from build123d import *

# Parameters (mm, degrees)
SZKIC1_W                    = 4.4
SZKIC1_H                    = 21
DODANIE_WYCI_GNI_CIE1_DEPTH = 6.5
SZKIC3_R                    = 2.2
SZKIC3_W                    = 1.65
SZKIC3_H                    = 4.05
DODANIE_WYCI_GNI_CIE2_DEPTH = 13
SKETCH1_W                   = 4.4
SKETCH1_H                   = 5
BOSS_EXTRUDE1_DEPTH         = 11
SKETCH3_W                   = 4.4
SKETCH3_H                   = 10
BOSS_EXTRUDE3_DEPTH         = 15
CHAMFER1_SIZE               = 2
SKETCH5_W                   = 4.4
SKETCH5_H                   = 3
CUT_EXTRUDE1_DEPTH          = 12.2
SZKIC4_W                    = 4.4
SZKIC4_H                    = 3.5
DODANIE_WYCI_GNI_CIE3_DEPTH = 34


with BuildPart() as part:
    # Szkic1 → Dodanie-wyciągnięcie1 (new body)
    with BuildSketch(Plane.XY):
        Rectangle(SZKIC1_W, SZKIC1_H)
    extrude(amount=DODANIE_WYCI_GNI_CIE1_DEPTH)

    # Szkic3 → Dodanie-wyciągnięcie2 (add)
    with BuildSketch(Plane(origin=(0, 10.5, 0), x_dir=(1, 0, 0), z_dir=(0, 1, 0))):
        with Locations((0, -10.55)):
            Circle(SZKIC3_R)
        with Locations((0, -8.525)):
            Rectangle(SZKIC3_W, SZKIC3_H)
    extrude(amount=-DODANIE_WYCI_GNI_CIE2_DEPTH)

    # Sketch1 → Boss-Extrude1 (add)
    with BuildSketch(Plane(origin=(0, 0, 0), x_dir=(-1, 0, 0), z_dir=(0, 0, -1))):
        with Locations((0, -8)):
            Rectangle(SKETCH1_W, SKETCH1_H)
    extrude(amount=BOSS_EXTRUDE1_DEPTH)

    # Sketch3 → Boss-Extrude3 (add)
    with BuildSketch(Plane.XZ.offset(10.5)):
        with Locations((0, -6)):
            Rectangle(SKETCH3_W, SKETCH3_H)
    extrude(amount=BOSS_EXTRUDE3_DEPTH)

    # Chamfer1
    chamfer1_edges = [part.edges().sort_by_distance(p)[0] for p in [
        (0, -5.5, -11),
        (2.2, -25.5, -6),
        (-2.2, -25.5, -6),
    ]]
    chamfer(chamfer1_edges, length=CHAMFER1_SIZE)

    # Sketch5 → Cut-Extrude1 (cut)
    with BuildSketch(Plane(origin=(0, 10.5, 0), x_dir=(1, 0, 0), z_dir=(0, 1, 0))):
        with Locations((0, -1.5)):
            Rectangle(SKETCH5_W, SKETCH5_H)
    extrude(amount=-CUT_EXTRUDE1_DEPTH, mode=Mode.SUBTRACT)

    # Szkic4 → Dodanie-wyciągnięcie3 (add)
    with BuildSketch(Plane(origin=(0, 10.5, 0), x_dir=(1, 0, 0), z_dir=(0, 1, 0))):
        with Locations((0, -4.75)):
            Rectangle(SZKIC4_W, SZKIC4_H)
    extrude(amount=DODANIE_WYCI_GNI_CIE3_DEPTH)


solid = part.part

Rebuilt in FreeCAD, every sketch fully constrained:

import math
import FreeCAD as App
import Part
import Sketcher
Q = App.Units.Quantity


def edges_at(feature, points):
    """Names of the edges that pass closest to the given points."""
    edges = feature.Shape.Edges
    near = lambda p: min(range(len(edges)), key=lambda i: edges[i].distToShape(Part.Vertex(*p))[0])
    return sorted({f"Edge{near(p) + 1}" for p in points})


def add_polygon(sketch, points):
    """Adds a closed chain of lines whose ends are joined by coincident constraints."""
    first, n = sketch.GeometryCount, len(points)
    for a, b in zip(points, points[1:] + points[:1]):
        sketch.addGeometry(Part.LineSegment(App.Vector(*a, 0), App.Vector(*b, 0)), False)
    for i in range(n):
        sketch.addConstraint(Sketcher.Constraint("Coincident", first + i, 2, first + (i + 1) % n, 1))

doc = App.newDocument("Part")
body = doc.addObject("PartDesign::Body", "Body")

# Sketch on XY plane
sketch1 = body.newObject("Sketcher::SketchObject", "Sketch")
sketch1.AttachmentSupport = (doc.getObject("XY_Plane"), [""])
sketch1.MapMode = "FlatFace"
add_polygon(sketch1, [(-2.2, 10.5), (-2.2, -10.5), (2.2, -10.5), (2.2, 10.5)])  # lines 0-3
sketch1.addConstraint([
    Sketcher.Constraint("Vertical", 0),
    Sketcher.Constraint("Horizontal", 1),
    Sketcher.Constraint("Vertical", 2),
    Sketcher.Constraint("Horizontal", 3),
    Sketcher.Constraint("Symmetric", 0, 2, 2, 2, -1, 1),
    Sketcher.Constraint("DistanceY", 0, 2, 0, 1, Q("21 mm")),
    Sketcher.Constraint("DistanceX", 1, 1, 1, 2, Q("4.4 mm")),
])
pad1 = body.newObject("PartDesign::Pad", "Pad")
pad1.Profile = sketch1
pad1.Length = 6.5

# Sketch on XZ plane
sketch2 = body.newObject("Sketcher::SketchObject", "Sketch001")
sketch2.AttachmentSupport = (doc.getObject("XZ_Plane"), [""])
sketch2.MapMode = "FlatFace"
sketch2.AttachmentOffset = App.Placement(App.Vector(0, 0, -10.5), App.Rotation())
sketch2.addGeometry([
    Part.ArcOfCircle(Part.Circle(App.Vector(0, 10.55, 0), App.Vector(0, 0, 1), 2.2), math.radians(-67.975687), math.radians(247.975687)),
    Part.LineSegment(App.Vector(0.825, 8.510545, 0), App.Vector(0.825, 6.5, 0)),
    Part.LineSegment(App.Vector(0.825, 6.5, 0), App.Vector(-0.825, 6.5, 0)),
    Part.LineSegment(App.Vector(-0.825, 6.5, 0), App.Vector(-0.825, 8.510545, 0)),
], False)
sketch2.addConstraint([
    Sketcher.Constraint("Coincident", 0, 1, 1, 1),
    Sketcher.Constraint("Coincident", 1, 2, 2, 1),
    Sketcher.Constraint("Coincident", 2, 2, 3, 1),
    Sketcher.Constraint("Coincident", 3, 2, 0, 2),
    Sketcher.Constraint("Vertical", 1),
    Sketcher.Constraint("Horizontal", 2),
    Sketcher.Constraint("Vertical", 3),
    Sketcher.Constraint("Symmetric", 0, 1, 3, 2, -2),
    Sketcher.Constraint("Radius", 0, Q("2.2 mm")),
    Sketcher.Constraint("DistanceX", 2, 2, 2, 1, Q("1.65 mm")),
    Sketcher.Constraint("DistanceY", -1, 1, 1, 2, Q("6.5 mm")),
    Sketcher.Constraint("DistanceY", -1, 1, 0, 3, Q("10.55 mm")),
])
pad2 = body.newObject("PartDesign::Pad", "Pad001")
pad2.Profile = sketch2
pad2.Length = 13

# Sketch on XY plane
sketch3 = body.newObject("Sketcher::SketchObject", "Sketch002")
sketch3.AttachmentSupport = (doc.getObject("XY_Plane"), [""])
sketch3.MapMode = "FlatFace"
add_polygon(sketch3, [(2.2, -5.5), (2.2, -10.5), (-2.2, -10.5), (-2.2, -5.5)])  # lines 0-3
sketch3.addConstraint([
    Sketcher.Constraint("Vertical", 0),
    Sketcher.Constraint("Horizontal", 1),
    Sketcher.Constraint("Vertical", 2),
    Sketcher.Constraint("Horizontal", 3),
    Sketcher.Constraint("DistanceY", 0, 2, 0, 1, Q("5 mm")),
    Sketcher.Constraint("DistanceX", 1, 2, 1, 1, Q("4.4 mm")),
    Sketcher.Constraint("DistanceX", -1, 1, 0, 2, Q("2.2 mm")),
    Sketcher.Constraint("DistanceY", 0, 2, -1, 1, Q("10.5 mm")),
])
pad3 = body.newObject("PartDesign::Pad", "Pad002")
pad3.Profile = sketch3
pad3.Length = 11
pad3.Reversed = True

# Sketch on XZ plane
sketch4 = body.newObject("Sketcher::SketchObject", "Sketch003")
sketch4.AttachmentSupport = (doc.getObject("XZ_Plane"), [""])
sketch4.MapMode = "FlatFace"
sketch4.AttachmentOffset = App.Placement(App.Vector(0, 0, 10.5), App.Rotation())
add_polygon(sketch4, [(-2.2, -1), (-2.2, -11), (2.2, -11), (2.2, -1)])  # lines 0-3
sketch4.addConstraint([
    Sketcher.Constraint("Vertical", 0),
    Sketcher.Constraint("Horizontal", 1),
    Sketcher.Constraint("Vertical", 2),
    Sketcher.Constraint("Horizontal", 3),
    Sketcher.Constraint("DistanceY", 0, 2, 0, 1, Q("10 mm")),
    Sketcher.Constraint("DistanceX", 1, 1, 1, 2, Q("4.4 mm")),
    Sketcher.Constraint("DistanceY", 0, 2, -1, 1, Q("11 mm")),
    Sketcher.Constraint("DistanceX", 0, 2, -1, 1, Q("2.2 mm")),
])
pad4 = body.newObject("PartDesign::Pad", "Pad003")
pad4.Profile = sketch4
pad4.Length = 15
doc.recompute()

chamfer = body.newObject("PartDesign::Chamfer", "Chamfer")
chamfer.Base = (pad4, edges_at(pad4, [(0, -5.5, -11), (2.2, -25.5, -6), (-2.2, -25.5, -6)]))
chamfer.Size = 2

# Sketch on XZ plane
sketch5 = body.newObject("Sketcher::SketchObject", "Sketch004")
sketch5.AttachmentSupport = (doc.getObject("XZ_Plane"), [""])
sketch5.MapMode = "FlatFace"
sketch5.AttachmentOffset = App.Placement(App.Vector(0, 0, -10.5), App.Rotation())
add_polygon(sketch5, [(-2.2, 0), (-2.2, 3), (2.2, 3), (2.2, 0)])  # lines 0-3
sketch5.addConstraint([
    Sketcher.Constraint("Vertical", 0),
    Sketcher.Constraint("Horizontal", 1),
    Sketcher.Constraint("Vertical", 2),
    Sketcher.Constraint("Horizontal", 3),
    Sketcher.Constraint("Symmetric", 2, 2, 3, 2, -1, 1),
    Sketcher.Constraint("DistanceY", 0, 1, 0, 2, Q("3 mm")),
    Sketcher.Constraint("DistanceX", 1, 1, 1, 2, Q("4.4 mm")),
])
pocket1 = body.newObject("PartDesign::Pocket", "Pocket")
pocket1.Profile = sketch5
pocket1.Length = 12.2
pocket1.Reversed = True

# Sketch on XZ plane
sketch6 = body.newObject("Sketcher::SketchObject", "Sketch005")
sketch6.AttachmentSupport = (doc.getObject("XZ_Plane"), [""])
sketch6.MapMode = "FlatFace"
sketch6.AttachmentOffset = App.Placement(App.Vector(0, 0, -10.5), App.Rotation())
add_polygon(sketch6, [(-2.2, 3), (-2.2, 6.5), (2.2, 6.5), (2.2, 3)])  # lines 0-3
sketch6.addConstraint([
    Sketcher.Constraint("Vertical", 0),
    Sketcher.Constraint("Horizontal", 1),
    Sketcher.Constraint("Vertical", 2),
    Sketcher.Constraint("Horizontal", 3),
    Sketcher.Constraint("DistanceX", 1, 1, 1, 2, Q("4.4 mm")),
    Sketcher.Constraint("DistanceY", 0, 1, 0, 2, Q("3.5 mm")),
    Sketcher.Constraint("DistanceY", -1, 1, 2, 2, Q("3 mm")),
    Sketcher.Constraint("DistanceX", 0, 2, -1, 1, Q("2.2 mm")),
])
pad5 = body.newObject("PartDesign::Pad", "Pad004")
pad5.Profile = sketch6
pad5.Length = 34
pad5.Reversed = True

doc.recompute()
